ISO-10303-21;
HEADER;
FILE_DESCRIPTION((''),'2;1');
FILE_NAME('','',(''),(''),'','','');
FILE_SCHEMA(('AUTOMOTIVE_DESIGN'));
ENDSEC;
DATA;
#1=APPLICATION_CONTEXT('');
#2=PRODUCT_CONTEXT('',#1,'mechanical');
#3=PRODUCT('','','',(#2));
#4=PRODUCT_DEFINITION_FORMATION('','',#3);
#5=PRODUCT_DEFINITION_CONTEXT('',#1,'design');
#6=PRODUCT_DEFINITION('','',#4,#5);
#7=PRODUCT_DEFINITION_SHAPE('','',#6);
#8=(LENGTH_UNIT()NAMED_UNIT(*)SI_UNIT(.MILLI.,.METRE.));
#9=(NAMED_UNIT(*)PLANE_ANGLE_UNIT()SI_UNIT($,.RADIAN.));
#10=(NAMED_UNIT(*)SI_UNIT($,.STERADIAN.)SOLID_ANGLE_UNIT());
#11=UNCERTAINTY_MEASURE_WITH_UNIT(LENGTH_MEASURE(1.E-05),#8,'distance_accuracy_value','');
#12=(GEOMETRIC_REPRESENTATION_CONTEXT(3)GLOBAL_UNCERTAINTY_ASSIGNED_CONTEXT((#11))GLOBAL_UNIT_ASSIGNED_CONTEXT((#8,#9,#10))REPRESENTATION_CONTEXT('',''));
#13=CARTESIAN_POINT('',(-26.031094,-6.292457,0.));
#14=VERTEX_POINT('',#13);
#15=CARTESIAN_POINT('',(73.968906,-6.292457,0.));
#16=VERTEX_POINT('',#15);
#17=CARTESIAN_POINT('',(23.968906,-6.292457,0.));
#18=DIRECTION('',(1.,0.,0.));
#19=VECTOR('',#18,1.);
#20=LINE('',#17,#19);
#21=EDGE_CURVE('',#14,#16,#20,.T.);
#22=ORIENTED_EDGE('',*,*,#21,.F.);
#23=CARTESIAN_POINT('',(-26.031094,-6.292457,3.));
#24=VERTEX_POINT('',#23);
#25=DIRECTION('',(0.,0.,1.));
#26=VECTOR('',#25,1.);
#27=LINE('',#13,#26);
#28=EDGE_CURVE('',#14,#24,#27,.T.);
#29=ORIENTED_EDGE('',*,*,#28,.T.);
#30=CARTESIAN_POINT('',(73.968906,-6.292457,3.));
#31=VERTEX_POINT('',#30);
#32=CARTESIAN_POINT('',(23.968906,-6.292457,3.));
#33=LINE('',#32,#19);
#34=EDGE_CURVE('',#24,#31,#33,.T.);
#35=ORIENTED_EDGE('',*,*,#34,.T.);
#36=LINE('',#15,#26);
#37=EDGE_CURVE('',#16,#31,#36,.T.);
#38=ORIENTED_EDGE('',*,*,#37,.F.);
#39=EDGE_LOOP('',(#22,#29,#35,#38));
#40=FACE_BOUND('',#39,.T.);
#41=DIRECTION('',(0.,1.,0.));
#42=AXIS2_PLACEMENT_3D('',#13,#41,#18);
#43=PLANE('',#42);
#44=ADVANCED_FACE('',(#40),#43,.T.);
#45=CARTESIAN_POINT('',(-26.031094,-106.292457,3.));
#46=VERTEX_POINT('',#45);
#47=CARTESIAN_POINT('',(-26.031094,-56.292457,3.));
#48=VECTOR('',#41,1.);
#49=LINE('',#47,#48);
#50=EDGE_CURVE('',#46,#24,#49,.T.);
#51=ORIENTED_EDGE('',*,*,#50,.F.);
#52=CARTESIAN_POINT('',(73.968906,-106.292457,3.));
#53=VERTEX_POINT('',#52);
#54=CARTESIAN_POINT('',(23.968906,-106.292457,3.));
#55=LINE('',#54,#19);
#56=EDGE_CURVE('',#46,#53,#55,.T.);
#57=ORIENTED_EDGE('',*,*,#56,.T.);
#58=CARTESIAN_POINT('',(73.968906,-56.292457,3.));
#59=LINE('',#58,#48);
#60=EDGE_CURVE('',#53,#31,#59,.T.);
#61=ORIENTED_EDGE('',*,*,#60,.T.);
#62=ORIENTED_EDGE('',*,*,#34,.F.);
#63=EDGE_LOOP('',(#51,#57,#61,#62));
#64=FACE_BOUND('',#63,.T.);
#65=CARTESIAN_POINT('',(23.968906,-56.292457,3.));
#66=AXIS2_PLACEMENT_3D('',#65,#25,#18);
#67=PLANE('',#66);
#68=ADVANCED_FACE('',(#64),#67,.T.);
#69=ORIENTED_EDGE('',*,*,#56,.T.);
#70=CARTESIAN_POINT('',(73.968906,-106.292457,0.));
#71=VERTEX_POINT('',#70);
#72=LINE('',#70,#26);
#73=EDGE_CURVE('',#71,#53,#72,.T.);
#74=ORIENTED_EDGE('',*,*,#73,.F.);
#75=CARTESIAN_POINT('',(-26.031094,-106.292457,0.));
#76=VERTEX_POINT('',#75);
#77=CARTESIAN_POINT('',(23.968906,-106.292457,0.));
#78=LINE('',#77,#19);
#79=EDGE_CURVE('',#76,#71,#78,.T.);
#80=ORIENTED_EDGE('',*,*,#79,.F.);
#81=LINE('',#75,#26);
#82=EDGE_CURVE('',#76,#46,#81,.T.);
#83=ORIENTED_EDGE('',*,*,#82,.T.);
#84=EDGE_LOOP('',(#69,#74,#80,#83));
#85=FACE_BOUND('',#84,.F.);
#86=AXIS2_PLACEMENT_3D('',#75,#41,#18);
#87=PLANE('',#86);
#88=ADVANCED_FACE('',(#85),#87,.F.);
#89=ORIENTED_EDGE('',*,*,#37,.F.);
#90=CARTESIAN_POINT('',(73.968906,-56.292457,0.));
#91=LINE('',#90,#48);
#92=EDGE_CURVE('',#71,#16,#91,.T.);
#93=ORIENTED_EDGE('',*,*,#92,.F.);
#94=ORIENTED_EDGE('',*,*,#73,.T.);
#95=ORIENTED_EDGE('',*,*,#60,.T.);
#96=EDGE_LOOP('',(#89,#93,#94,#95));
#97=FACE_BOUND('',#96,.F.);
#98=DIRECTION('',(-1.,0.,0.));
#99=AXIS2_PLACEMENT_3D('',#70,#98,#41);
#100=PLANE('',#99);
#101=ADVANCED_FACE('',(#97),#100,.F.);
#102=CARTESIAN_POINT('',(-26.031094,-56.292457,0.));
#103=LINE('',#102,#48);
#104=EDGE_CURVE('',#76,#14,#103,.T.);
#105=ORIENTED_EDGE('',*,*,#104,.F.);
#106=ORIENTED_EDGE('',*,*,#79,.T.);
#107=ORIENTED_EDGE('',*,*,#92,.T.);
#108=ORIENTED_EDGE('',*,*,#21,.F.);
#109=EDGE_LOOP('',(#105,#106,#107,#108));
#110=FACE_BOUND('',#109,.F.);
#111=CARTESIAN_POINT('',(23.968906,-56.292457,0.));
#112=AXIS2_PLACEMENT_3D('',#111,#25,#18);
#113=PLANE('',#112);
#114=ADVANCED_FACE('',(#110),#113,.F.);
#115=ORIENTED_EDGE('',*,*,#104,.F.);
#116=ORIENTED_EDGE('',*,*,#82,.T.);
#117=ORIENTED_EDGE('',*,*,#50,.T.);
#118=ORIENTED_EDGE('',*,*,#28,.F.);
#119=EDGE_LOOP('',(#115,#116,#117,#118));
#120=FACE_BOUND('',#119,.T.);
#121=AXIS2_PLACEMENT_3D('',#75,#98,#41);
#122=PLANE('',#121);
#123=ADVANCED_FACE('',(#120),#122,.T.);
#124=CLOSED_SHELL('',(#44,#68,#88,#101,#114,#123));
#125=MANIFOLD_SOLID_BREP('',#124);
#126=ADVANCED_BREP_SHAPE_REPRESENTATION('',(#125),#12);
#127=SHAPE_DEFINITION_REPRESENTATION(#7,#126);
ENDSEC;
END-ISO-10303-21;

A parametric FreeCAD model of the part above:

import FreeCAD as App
import Part
import Sketcher

V = App.Vector
Q = App.Units.Quantity

doc = App.newDocument("Part")
params = doc.addObject("Spreadsheet::Sheet", "Params")
for row, (alias, value) in enumerate([
    ("sketch1_width", "100 mm"),
    ("pad1_length", "3 mm"),
], start=1):
    params.set(f"A{row}", alias)
    params.set(f"B{row}", "=" + value)
    params.setAlias(f"B{row}", alias)

body = doc.addObject("PartDesign::Body", "Body")

# Sketch on XY plane
sketch1 = doc.addObject("Sketcher::SketchObject", "Sketch")
body.addObject(sketch1)
sketch1.AttachmentSupport = (doc.XY_Plane, [""])
sketch1.MapMode = "FlatFace"
sketch1.addGeometry([
    Part.LineSegment(V(-26, -6, 0), V(-26, -106, 0)),
    Part.LineSegment(V(-26, -106, 0), V(74, -106, 0)),
    Part.LineSegment(V(74, -106, 0), V(74, -6, 0)),
    Part.LineSegment(V(74, -6, 0), V(-26, -6, 0)),
], False)
sketch1.addConstraint([
    Sketcher.Constraint("Coincident", 0, 2, 1, 1),
    Sketcher.Constraint("Coincident", 1, 2, 2, 1),
    Sketcher.Constraint("Coincident", 2, 2, 3, 1),
    Sketcher.Constraint("Coincident", 3, 2, 0, 1),
    Sketcher.Constraint("Vertical", 0),
    Sketcher.Constraint("Horizontal", 1),
    Sketcher.Constraint("Vertical", 2),
    Sketcher.Constraint("Horizontal", 3),
    Sketcher.Constraint("Equal", 3, 0),
    Sketcher.Constraint("DistanceX", 1, 1, 1, 2, Q("100 mm")),
    Sketcher.Constraint("DistanceX", 0, 2, -1, 1, Q("26.031094 mm")),
    Sketcher.Constraint("DistanceY", 0, 2, -1, 1, Q("106.292457 mm")),
])
sketch1.setExpression("Constraints[9]", "Params.sketch1_width")
pad1 = doc.addObject("PartDesign::Pad", "Pad")
body.addObject(pad1)
pad1.Profile = sketch1
pad1.setExpression("Length", "Params.pad1_length")

doc.recompute()
